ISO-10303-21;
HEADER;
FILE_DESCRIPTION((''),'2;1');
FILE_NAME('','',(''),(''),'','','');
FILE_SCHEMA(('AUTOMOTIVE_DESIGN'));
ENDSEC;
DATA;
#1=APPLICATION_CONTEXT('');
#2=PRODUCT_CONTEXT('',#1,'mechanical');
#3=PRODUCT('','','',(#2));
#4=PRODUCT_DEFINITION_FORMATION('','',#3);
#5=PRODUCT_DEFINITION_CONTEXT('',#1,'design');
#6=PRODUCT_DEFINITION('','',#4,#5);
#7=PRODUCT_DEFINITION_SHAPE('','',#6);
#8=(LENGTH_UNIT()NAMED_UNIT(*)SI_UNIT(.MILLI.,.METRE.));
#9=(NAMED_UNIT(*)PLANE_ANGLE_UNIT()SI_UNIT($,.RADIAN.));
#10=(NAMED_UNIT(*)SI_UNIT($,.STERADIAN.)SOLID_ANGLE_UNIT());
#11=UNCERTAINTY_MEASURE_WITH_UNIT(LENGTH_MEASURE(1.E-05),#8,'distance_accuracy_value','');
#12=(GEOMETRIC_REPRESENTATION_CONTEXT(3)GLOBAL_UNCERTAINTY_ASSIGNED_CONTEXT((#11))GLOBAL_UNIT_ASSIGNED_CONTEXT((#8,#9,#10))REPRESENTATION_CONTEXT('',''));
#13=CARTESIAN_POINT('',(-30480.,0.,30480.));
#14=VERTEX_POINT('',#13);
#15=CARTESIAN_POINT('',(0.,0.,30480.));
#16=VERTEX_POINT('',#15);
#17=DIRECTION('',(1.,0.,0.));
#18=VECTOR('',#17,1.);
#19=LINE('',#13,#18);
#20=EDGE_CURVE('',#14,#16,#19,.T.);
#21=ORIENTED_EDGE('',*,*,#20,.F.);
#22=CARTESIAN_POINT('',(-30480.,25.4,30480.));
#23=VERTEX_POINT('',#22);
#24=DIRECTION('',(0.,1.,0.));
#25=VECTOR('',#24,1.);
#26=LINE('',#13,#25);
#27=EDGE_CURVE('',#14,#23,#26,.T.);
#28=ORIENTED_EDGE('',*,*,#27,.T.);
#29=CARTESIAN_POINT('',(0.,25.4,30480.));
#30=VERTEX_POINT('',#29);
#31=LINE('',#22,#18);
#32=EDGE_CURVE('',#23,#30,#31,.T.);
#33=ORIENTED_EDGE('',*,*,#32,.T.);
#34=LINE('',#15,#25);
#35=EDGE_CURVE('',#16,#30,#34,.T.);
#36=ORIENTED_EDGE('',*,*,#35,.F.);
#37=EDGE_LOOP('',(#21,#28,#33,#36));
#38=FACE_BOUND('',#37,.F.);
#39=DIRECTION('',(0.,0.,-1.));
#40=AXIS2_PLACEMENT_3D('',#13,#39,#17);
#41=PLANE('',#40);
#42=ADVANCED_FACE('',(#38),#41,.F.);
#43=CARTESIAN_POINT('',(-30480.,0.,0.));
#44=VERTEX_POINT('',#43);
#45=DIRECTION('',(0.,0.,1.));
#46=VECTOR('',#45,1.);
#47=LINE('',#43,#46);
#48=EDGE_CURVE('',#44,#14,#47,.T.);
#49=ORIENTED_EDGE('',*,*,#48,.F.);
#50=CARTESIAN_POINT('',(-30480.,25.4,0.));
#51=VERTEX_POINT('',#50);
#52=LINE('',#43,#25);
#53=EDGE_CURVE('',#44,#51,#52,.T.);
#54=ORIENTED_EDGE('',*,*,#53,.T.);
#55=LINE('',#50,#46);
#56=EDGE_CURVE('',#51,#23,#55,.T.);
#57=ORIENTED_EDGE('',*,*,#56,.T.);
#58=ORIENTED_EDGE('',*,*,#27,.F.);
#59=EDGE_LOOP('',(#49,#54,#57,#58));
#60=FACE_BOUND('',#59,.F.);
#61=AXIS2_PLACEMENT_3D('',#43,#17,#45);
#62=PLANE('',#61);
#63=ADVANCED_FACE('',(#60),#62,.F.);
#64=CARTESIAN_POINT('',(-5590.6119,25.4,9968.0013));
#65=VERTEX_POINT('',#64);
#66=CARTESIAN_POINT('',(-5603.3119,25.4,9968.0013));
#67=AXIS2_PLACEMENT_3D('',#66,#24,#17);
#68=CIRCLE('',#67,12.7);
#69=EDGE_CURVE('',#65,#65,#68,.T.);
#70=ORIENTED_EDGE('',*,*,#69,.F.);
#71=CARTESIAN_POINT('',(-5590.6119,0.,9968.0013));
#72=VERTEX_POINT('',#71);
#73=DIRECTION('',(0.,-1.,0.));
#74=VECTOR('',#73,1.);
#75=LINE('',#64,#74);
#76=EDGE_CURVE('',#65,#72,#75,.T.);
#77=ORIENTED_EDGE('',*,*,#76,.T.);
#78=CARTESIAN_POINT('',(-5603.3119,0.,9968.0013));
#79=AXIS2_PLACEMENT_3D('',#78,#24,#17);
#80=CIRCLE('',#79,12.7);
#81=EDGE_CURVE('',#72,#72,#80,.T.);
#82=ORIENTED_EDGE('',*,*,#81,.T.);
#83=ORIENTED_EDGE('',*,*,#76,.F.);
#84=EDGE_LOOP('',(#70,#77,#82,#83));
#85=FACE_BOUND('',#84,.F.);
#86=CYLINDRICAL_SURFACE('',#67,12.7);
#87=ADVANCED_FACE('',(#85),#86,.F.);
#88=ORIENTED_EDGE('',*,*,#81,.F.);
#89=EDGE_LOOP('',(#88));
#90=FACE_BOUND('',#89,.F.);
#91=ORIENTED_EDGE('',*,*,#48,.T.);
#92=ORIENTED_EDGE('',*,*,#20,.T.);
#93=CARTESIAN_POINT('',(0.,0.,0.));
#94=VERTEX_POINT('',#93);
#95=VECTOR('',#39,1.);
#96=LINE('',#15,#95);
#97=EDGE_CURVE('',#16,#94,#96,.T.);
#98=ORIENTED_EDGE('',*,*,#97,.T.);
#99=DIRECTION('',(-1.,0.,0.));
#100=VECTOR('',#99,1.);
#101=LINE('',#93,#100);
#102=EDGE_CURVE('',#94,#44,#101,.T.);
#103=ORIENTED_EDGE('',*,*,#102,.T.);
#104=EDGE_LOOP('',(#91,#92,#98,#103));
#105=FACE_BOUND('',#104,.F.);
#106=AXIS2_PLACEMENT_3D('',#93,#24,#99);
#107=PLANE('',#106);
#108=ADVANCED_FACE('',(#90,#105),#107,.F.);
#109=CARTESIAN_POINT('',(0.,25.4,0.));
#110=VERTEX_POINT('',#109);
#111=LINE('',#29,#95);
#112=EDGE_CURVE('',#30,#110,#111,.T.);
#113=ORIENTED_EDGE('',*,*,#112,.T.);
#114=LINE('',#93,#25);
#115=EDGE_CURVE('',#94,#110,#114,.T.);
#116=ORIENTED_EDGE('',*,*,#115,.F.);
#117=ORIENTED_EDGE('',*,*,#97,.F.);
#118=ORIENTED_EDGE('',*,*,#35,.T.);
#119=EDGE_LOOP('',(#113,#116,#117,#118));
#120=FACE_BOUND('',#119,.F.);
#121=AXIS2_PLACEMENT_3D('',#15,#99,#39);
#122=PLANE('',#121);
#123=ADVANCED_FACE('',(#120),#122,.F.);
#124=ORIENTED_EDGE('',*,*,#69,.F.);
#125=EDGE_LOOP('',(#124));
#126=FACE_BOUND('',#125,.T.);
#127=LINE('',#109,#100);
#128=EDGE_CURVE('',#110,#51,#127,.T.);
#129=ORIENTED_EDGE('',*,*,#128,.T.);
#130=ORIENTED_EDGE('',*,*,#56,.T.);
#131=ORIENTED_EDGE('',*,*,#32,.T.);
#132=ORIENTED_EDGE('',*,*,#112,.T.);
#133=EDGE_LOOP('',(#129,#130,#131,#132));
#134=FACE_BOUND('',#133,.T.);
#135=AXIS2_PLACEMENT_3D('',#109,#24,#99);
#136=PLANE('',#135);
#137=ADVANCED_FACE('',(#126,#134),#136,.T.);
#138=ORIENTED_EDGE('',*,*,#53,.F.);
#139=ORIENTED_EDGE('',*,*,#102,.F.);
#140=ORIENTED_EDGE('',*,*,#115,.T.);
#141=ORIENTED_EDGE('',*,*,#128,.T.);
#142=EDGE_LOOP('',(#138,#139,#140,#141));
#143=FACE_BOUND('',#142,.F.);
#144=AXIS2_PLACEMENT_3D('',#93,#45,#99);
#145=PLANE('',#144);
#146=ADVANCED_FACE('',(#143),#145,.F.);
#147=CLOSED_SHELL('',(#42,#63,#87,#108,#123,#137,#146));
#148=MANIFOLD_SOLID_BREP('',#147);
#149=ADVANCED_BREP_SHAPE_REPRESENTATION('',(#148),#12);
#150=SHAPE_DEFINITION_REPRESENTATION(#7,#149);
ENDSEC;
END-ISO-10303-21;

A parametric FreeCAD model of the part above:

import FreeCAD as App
import Part
import Sketcher

V = App.Vector
Q = App.Units.Quantity


def add_polygon(sketch, points):
    """Adds a closed chain of lines whose ends are joined by coincident constraints."""
    first, n = sketch.GeometryCount, len(points)
    for a, b in zip(points, points[1:] + points[:1]):
        sketch.addGeometry(Part.LineSegment(App.Vector(*a, 0), App.Vector(*b, 0)), False)
    for i in range(n):
        sketch.addConstraint(Sketcher.Constraint("Coincident", first + i, 2, first + (i + 1) % n, 1))

doc = App.newDocument("Part")
body = doc.addObject("PartDesign::Body", "Body")

sketch1 = doc.addObject("Sketcher::SketchObject", "Sketch")
body.addObject(sketch1)
sketch1.AttachmentSupport = (doc.XZ_Plane, [""])
sketch1.MapMode = "FlatFace"
add_polygon(sketch1, [(0, 30480), (0, 0), (-30480, 0), (-30480, 30480)])
sketch1.addConstraint(Sketcher.Constraint("Vertical", 0))
sketch1.addConstraint(Sketcher.Constraint("Horizontal", 1))
sketch1.addConstraint(Sketcher.Constraint("Vertical", 2))
sketch1.addConstraint(Sketcher.Constraint("Horizontal", 3))
sketch1.addConstraint(Sketcher.Constraint("Coincident", 0, 2, -1, 1))
sketch1.addConstraint(Sketcher.Constraint("Equal", 3, 0))
sketch1.addConstraint(Sketcher.Constraint("DistanceX", 1, 2, 1, 1, Q("1200 in")))
pad1 = doc.addObject("PartDesign::Pad", "Pad")
body.addObject(pad1)
pad1.Profile = sketch1
pad1.Length = Q("1 in")
pad1.Reversed = True

sketch2 = doc.addObject("Sketcher::SketchObject", "Sketch001")
body.addObject(sketch2)
sketch2.AttachmentSupport = (doc.XZ_Plane, [""])
sketch2.MapMode = "FlatFace"
sketch2.AttachmentOffset = App.Placement(V(0, 0, -1 * 25.4), App.Rotation())
sketch2.addGeometry(Part.Circle(V(-5603, 9968, 0), V(0, 0, 1), 13), False)
sketch2.addConstraint(Sketcher.Constraint("Diameter", 0, Q("1 in")))
sketch2.addConstraint(Sketcher.Constraint("DistanceY", -1, 1, 0, 3, Q("392.441 in")))
sketch2.addConstraint(Sketcher.Constraint("DistanceX", 0, 3, -1, 1, 5603.312))
pocket1 = doc.addObject("PartDesign::Pocket", "Pocket")
body.addObject(pocket1)
pocket1.Profile = sketch2
pocket1.Length = Q("1 in")
pocket1.Reversed = True

doc.recompute()
